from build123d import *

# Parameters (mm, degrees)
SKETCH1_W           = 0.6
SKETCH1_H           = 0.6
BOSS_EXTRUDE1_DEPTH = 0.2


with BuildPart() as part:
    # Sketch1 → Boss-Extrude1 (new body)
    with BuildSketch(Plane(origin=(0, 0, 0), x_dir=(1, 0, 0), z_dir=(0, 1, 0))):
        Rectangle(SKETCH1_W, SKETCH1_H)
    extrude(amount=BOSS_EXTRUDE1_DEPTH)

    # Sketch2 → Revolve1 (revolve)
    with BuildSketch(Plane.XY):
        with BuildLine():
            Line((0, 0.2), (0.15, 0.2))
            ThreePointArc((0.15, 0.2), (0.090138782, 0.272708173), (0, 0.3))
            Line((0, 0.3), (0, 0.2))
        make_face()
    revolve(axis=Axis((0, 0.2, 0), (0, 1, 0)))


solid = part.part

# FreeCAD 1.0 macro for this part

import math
import FreeCAD as App
import Part
import Sketcher


def add_polygon(sketch, points):
    """Adds a closed chain of lines whose ends are joined by coincident constraints."""
    first, n = sketch.GeometryCount, len(points)
    for a, b in zip(points, points[1:] + points[:1]):
        sketch.addGeometry(Part.LineSegment(App.Vector(*a, 0), App.Vector(*b, 0)), False)
    for i in range(n):
        sketch.addConstraint(Sketcher.Constraint("Coincident", first + i, 2, first + (i + 1) % n, 1))

doc = App.newDocument("Part")
body = doc.addObject("PartDesign::Body", "Body")

# Sketch on XZ plane
sketch1 = body.newObject("Sketcher::SketchObject", "Sketch")
sketch1.AttachmentSupport = (doc.getObject("XZ_Plane"), [""])
sketch1.MapMode = "FlatFace"
add_polygon(sketch1, [(-0.3, -0.3), (-0.3, 0.3), (0.3, 0.3), (0.3, -0.3)])  # lines 0-3
sketch1.addConstraint(Sketcher.Constraint("Vertical", 0))
sketch1.addConstraint(Sketcher.Constraint("Horizontal", 1))
sketch1.addConstraint(Sketcher.Constraint("Vertical", 2))
sketch1.addConstraint(Sketcher.Constraint("Horizontal", 3))
sketch1.addConstraint(Sketcher.Constraint("Symmetric", 0, 2, 2, 2, -1, 1))
sketch1.addConstraint(Sketcher.Constraint("Equal", 3, 0))
sketch1.addConstraint(Sketcher.Constraint("DistanceX", 1, 1, 1, 2, 0.6))
pad1 = body.newObject("PartDesign::Pad", "Pad")
pad1.Profile = sketch1
pad1.Length = 0.2
pad1.Reversed = True

# Sketch on XY plane
sketch2 = body.newObject("Sketcher::SketchObject", "Sketch001")
sketch2.AttachmentSupport = (doc.getObject("XY_Plane"), [""])
sketch2.MapMode = "FlatFace"
sketch2.addGeometry(Part.LineSegment(App.Vector(0, 0.2, 0), App.Vector(0.15, 0.2, 0)), False)
sketch2.addGeometry(Part.ArcOfCircle(Part.Circle(App.Vector(0, 0.14, 0), App.Vector(0, 0, 1), 0.16), math.radians(23), math.radians(90)), False)
sketch2.addGeometry(Part.LineSegment(App.Vector(0, 0.3, 0), App.Vector(0, 0.2, 0)), False)
sketch2.addConstraint(Sketcher.Constraint("Coincident", 0, 2, 1, 1))
sketch2.addConstraint(Sketcher.Constraint("Coincident", 1, 2, 2, 1))
sketch2.addConstraint(Sketcher.Constraint("Coincident", 2, 2, 0, 1))
sketch2.addConstraint(Sketcher.Constraint("Horizontal", 0))
sketch2.addConstraint(Sketcher.Constraint("Vertical", 2))
sketch2.addConstraint(Sketcher.Constraint("PointOnObject", 1, 3, -2))
sketch2.addConstraint(Sketcher.Constraint("PointOnObject", 1, 2, -2))
sketch2.addConstraint(Sketcher.Constraint("DistanceY", 2, 2, 2, 1, 0.1))
sketch2.addConstraint(Sketcher.Constraint("DistanceX", 0, 1, 0, 2, 0.15))
sketch2.addConstraint(Sketcher.Constraint("DistanceY", -1, 1, 0, 2, 0.2))
revolution = body.newObject("PartDesign::Revolution", "Revolution")
revolution.Profile = sketch2
revolution.ReferenceAxis = (sketch2, ["V_Axis"])
revolution.Angle = 360

doc.recompute()
